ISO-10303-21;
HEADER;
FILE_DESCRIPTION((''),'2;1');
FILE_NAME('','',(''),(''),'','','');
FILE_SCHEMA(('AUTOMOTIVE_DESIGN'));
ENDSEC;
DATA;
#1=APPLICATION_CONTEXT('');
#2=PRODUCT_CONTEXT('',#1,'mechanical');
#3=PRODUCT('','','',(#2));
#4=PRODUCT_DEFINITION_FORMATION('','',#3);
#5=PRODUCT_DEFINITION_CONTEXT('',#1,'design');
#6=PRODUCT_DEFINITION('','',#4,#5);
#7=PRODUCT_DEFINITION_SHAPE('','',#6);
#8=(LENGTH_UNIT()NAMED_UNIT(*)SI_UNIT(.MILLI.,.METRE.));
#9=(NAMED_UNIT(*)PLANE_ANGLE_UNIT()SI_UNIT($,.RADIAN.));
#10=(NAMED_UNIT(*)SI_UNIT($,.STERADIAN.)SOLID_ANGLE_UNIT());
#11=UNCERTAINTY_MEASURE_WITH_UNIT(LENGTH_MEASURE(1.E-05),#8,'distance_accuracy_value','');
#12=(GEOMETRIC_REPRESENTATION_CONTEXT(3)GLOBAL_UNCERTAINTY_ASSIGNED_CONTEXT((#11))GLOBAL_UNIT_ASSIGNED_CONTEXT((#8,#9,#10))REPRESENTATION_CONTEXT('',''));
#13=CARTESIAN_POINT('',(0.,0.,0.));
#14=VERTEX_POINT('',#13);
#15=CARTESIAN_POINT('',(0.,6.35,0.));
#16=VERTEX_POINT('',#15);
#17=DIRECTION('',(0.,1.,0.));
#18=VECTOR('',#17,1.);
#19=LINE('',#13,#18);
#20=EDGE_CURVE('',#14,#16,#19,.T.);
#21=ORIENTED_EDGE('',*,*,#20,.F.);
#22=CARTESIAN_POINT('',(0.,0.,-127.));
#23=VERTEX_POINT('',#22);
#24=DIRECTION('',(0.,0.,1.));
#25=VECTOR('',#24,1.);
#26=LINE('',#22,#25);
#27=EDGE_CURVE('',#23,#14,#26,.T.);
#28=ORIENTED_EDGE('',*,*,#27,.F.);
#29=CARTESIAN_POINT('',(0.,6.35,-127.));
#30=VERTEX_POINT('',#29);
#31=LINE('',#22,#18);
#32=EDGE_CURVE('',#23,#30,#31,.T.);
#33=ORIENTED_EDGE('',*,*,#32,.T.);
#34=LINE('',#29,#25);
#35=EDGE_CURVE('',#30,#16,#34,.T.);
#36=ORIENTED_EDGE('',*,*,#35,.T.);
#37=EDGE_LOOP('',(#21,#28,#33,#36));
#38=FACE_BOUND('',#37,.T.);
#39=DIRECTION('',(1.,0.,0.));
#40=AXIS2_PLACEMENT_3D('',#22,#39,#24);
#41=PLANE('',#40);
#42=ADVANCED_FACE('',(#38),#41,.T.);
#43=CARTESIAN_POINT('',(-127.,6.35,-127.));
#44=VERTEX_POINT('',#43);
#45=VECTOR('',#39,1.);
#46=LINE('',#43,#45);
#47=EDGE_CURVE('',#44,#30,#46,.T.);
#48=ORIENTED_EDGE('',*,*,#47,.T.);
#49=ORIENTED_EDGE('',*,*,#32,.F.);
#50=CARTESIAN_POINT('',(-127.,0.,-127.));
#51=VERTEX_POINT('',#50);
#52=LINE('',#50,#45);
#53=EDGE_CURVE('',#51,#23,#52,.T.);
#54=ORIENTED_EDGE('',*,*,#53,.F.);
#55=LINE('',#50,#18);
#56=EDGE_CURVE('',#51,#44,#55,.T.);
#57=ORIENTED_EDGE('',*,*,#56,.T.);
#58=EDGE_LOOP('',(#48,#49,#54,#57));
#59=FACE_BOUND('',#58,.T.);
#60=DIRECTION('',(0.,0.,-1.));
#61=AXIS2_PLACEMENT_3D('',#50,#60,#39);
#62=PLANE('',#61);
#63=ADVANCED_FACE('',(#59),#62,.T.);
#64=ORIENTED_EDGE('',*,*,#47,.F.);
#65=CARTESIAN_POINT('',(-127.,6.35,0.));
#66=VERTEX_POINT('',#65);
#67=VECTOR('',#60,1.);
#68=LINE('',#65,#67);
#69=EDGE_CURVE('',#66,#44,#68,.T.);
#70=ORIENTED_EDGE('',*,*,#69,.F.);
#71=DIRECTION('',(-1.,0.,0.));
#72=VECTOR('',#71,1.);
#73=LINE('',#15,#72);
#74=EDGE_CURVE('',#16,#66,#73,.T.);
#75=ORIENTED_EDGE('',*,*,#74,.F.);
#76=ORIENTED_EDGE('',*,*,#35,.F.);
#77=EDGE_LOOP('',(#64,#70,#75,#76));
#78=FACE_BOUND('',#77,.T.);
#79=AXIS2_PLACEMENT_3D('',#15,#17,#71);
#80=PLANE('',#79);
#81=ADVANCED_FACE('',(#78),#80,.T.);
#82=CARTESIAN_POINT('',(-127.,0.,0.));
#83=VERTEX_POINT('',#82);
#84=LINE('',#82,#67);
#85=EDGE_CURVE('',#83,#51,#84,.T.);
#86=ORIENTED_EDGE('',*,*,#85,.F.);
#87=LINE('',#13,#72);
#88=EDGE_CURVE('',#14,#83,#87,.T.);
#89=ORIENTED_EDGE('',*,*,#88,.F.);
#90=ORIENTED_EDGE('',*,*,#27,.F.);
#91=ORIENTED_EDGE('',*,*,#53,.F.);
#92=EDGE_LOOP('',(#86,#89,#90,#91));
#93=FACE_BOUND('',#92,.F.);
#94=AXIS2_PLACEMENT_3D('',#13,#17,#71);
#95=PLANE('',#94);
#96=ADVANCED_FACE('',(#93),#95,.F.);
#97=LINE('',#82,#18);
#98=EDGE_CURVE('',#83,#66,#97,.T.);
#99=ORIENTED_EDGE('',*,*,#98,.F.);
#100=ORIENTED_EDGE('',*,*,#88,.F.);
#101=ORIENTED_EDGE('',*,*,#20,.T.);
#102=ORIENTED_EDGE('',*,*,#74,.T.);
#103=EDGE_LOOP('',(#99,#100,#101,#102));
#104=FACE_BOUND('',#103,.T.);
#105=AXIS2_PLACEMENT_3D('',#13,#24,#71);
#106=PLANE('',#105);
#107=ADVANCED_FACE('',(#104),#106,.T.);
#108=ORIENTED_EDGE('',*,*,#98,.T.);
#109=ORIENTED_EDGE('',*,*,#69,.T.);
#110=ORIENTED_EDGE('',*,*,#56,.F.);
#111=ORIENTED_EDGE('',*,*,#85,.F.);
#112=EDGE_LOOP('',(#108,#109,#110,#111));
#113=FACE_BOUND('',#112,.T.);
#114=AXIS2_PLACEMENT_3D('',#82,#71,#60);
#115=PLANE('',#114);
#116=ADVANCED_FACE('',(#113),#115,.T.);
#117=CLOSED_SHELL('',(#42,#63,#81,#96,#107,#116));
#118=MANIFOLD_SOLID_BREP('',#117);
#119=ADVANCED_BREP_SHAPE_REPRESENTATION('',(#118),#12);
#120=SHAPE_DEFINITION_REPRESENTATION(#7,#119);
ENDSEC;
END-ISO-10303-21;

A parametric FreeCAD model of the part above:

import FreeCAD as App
import Part
import Sketcher
from FreeCAD import Vector
Q = App.Units.Quantity

doc = App.newDocument("Part")
params = doc.addObject("Spreadsheet::Sheet", "Params")
for row, (alias, value) in enumerate([
    ("sketch1_width", "5 in"),
    ("pad1_length", "0.25 in"),
], start=1):
    params.set(f"A{row}", alias)
    params.set(f"B{row}", "=" + value)
    params.setAlias(f"B{row}", alias)

body = doc.addObject("PartDesign::Body", "Body")

# Sketch on XZ plane
sketch1 = body.newObject("Sketcher::SketchObject", "Sketch")
sketch1.AttachmentSupport = (doc.getObject("XZ_Plane"), [""])
sketch1.MapMode = "FlatFace"
sketch1.addGeometry([
    Part.LineSegment(Vector(-127, 0, 0), Vector(0, 0, 0)),
    Part.LineSegment(Vector(0, 0, 0), Vector(0, -127, 0)),
    Part.LineSegment(Vector(0, -127, 0), Vector(-127, -127, 0)),
    Part.LineSegment(Vector(-127, -127, 0), Vector(-127, 0, 0)),
], False)
sketch1.addConstraint([
    Sketcher.Constraint("Coincident", 0, 2, 1, 1),
    Sketcher.Constraint("Coincident", 1, 2, 2, 1),
    Sketcher.Constraint("Coincident", 2, 2, 3, 1),
    Sketcher.Constraint("Coincident", 3, 2, 0, 1),
    Sketcher.Constraint("Horizontal", 0),
    Sketcher.Constraint("Vertical", 1),
    Sketcher.Constraint("Horizontal", 2),
    Sketcher.Constraint("Vertical", 3),
    Sketcher.Constraint("Coincident", 0, 2, -1, 1),
    Sketcher.Constraint("Equal", 2, 1),
    Sketcher.Constraint("DistanceX", 0, 1, 0, 2, Q("5 in")),
])
sketch1.setExpression("Constraints[10]", "Params.sketch1_width")
pad1 = body.newObject("PartDesign::Pad", "Pad")
pad1.Profile = sketch1
pad1.setExpression("Length", "Params.pad1_length")
pad1.Reversed = True

doc.recompute()
